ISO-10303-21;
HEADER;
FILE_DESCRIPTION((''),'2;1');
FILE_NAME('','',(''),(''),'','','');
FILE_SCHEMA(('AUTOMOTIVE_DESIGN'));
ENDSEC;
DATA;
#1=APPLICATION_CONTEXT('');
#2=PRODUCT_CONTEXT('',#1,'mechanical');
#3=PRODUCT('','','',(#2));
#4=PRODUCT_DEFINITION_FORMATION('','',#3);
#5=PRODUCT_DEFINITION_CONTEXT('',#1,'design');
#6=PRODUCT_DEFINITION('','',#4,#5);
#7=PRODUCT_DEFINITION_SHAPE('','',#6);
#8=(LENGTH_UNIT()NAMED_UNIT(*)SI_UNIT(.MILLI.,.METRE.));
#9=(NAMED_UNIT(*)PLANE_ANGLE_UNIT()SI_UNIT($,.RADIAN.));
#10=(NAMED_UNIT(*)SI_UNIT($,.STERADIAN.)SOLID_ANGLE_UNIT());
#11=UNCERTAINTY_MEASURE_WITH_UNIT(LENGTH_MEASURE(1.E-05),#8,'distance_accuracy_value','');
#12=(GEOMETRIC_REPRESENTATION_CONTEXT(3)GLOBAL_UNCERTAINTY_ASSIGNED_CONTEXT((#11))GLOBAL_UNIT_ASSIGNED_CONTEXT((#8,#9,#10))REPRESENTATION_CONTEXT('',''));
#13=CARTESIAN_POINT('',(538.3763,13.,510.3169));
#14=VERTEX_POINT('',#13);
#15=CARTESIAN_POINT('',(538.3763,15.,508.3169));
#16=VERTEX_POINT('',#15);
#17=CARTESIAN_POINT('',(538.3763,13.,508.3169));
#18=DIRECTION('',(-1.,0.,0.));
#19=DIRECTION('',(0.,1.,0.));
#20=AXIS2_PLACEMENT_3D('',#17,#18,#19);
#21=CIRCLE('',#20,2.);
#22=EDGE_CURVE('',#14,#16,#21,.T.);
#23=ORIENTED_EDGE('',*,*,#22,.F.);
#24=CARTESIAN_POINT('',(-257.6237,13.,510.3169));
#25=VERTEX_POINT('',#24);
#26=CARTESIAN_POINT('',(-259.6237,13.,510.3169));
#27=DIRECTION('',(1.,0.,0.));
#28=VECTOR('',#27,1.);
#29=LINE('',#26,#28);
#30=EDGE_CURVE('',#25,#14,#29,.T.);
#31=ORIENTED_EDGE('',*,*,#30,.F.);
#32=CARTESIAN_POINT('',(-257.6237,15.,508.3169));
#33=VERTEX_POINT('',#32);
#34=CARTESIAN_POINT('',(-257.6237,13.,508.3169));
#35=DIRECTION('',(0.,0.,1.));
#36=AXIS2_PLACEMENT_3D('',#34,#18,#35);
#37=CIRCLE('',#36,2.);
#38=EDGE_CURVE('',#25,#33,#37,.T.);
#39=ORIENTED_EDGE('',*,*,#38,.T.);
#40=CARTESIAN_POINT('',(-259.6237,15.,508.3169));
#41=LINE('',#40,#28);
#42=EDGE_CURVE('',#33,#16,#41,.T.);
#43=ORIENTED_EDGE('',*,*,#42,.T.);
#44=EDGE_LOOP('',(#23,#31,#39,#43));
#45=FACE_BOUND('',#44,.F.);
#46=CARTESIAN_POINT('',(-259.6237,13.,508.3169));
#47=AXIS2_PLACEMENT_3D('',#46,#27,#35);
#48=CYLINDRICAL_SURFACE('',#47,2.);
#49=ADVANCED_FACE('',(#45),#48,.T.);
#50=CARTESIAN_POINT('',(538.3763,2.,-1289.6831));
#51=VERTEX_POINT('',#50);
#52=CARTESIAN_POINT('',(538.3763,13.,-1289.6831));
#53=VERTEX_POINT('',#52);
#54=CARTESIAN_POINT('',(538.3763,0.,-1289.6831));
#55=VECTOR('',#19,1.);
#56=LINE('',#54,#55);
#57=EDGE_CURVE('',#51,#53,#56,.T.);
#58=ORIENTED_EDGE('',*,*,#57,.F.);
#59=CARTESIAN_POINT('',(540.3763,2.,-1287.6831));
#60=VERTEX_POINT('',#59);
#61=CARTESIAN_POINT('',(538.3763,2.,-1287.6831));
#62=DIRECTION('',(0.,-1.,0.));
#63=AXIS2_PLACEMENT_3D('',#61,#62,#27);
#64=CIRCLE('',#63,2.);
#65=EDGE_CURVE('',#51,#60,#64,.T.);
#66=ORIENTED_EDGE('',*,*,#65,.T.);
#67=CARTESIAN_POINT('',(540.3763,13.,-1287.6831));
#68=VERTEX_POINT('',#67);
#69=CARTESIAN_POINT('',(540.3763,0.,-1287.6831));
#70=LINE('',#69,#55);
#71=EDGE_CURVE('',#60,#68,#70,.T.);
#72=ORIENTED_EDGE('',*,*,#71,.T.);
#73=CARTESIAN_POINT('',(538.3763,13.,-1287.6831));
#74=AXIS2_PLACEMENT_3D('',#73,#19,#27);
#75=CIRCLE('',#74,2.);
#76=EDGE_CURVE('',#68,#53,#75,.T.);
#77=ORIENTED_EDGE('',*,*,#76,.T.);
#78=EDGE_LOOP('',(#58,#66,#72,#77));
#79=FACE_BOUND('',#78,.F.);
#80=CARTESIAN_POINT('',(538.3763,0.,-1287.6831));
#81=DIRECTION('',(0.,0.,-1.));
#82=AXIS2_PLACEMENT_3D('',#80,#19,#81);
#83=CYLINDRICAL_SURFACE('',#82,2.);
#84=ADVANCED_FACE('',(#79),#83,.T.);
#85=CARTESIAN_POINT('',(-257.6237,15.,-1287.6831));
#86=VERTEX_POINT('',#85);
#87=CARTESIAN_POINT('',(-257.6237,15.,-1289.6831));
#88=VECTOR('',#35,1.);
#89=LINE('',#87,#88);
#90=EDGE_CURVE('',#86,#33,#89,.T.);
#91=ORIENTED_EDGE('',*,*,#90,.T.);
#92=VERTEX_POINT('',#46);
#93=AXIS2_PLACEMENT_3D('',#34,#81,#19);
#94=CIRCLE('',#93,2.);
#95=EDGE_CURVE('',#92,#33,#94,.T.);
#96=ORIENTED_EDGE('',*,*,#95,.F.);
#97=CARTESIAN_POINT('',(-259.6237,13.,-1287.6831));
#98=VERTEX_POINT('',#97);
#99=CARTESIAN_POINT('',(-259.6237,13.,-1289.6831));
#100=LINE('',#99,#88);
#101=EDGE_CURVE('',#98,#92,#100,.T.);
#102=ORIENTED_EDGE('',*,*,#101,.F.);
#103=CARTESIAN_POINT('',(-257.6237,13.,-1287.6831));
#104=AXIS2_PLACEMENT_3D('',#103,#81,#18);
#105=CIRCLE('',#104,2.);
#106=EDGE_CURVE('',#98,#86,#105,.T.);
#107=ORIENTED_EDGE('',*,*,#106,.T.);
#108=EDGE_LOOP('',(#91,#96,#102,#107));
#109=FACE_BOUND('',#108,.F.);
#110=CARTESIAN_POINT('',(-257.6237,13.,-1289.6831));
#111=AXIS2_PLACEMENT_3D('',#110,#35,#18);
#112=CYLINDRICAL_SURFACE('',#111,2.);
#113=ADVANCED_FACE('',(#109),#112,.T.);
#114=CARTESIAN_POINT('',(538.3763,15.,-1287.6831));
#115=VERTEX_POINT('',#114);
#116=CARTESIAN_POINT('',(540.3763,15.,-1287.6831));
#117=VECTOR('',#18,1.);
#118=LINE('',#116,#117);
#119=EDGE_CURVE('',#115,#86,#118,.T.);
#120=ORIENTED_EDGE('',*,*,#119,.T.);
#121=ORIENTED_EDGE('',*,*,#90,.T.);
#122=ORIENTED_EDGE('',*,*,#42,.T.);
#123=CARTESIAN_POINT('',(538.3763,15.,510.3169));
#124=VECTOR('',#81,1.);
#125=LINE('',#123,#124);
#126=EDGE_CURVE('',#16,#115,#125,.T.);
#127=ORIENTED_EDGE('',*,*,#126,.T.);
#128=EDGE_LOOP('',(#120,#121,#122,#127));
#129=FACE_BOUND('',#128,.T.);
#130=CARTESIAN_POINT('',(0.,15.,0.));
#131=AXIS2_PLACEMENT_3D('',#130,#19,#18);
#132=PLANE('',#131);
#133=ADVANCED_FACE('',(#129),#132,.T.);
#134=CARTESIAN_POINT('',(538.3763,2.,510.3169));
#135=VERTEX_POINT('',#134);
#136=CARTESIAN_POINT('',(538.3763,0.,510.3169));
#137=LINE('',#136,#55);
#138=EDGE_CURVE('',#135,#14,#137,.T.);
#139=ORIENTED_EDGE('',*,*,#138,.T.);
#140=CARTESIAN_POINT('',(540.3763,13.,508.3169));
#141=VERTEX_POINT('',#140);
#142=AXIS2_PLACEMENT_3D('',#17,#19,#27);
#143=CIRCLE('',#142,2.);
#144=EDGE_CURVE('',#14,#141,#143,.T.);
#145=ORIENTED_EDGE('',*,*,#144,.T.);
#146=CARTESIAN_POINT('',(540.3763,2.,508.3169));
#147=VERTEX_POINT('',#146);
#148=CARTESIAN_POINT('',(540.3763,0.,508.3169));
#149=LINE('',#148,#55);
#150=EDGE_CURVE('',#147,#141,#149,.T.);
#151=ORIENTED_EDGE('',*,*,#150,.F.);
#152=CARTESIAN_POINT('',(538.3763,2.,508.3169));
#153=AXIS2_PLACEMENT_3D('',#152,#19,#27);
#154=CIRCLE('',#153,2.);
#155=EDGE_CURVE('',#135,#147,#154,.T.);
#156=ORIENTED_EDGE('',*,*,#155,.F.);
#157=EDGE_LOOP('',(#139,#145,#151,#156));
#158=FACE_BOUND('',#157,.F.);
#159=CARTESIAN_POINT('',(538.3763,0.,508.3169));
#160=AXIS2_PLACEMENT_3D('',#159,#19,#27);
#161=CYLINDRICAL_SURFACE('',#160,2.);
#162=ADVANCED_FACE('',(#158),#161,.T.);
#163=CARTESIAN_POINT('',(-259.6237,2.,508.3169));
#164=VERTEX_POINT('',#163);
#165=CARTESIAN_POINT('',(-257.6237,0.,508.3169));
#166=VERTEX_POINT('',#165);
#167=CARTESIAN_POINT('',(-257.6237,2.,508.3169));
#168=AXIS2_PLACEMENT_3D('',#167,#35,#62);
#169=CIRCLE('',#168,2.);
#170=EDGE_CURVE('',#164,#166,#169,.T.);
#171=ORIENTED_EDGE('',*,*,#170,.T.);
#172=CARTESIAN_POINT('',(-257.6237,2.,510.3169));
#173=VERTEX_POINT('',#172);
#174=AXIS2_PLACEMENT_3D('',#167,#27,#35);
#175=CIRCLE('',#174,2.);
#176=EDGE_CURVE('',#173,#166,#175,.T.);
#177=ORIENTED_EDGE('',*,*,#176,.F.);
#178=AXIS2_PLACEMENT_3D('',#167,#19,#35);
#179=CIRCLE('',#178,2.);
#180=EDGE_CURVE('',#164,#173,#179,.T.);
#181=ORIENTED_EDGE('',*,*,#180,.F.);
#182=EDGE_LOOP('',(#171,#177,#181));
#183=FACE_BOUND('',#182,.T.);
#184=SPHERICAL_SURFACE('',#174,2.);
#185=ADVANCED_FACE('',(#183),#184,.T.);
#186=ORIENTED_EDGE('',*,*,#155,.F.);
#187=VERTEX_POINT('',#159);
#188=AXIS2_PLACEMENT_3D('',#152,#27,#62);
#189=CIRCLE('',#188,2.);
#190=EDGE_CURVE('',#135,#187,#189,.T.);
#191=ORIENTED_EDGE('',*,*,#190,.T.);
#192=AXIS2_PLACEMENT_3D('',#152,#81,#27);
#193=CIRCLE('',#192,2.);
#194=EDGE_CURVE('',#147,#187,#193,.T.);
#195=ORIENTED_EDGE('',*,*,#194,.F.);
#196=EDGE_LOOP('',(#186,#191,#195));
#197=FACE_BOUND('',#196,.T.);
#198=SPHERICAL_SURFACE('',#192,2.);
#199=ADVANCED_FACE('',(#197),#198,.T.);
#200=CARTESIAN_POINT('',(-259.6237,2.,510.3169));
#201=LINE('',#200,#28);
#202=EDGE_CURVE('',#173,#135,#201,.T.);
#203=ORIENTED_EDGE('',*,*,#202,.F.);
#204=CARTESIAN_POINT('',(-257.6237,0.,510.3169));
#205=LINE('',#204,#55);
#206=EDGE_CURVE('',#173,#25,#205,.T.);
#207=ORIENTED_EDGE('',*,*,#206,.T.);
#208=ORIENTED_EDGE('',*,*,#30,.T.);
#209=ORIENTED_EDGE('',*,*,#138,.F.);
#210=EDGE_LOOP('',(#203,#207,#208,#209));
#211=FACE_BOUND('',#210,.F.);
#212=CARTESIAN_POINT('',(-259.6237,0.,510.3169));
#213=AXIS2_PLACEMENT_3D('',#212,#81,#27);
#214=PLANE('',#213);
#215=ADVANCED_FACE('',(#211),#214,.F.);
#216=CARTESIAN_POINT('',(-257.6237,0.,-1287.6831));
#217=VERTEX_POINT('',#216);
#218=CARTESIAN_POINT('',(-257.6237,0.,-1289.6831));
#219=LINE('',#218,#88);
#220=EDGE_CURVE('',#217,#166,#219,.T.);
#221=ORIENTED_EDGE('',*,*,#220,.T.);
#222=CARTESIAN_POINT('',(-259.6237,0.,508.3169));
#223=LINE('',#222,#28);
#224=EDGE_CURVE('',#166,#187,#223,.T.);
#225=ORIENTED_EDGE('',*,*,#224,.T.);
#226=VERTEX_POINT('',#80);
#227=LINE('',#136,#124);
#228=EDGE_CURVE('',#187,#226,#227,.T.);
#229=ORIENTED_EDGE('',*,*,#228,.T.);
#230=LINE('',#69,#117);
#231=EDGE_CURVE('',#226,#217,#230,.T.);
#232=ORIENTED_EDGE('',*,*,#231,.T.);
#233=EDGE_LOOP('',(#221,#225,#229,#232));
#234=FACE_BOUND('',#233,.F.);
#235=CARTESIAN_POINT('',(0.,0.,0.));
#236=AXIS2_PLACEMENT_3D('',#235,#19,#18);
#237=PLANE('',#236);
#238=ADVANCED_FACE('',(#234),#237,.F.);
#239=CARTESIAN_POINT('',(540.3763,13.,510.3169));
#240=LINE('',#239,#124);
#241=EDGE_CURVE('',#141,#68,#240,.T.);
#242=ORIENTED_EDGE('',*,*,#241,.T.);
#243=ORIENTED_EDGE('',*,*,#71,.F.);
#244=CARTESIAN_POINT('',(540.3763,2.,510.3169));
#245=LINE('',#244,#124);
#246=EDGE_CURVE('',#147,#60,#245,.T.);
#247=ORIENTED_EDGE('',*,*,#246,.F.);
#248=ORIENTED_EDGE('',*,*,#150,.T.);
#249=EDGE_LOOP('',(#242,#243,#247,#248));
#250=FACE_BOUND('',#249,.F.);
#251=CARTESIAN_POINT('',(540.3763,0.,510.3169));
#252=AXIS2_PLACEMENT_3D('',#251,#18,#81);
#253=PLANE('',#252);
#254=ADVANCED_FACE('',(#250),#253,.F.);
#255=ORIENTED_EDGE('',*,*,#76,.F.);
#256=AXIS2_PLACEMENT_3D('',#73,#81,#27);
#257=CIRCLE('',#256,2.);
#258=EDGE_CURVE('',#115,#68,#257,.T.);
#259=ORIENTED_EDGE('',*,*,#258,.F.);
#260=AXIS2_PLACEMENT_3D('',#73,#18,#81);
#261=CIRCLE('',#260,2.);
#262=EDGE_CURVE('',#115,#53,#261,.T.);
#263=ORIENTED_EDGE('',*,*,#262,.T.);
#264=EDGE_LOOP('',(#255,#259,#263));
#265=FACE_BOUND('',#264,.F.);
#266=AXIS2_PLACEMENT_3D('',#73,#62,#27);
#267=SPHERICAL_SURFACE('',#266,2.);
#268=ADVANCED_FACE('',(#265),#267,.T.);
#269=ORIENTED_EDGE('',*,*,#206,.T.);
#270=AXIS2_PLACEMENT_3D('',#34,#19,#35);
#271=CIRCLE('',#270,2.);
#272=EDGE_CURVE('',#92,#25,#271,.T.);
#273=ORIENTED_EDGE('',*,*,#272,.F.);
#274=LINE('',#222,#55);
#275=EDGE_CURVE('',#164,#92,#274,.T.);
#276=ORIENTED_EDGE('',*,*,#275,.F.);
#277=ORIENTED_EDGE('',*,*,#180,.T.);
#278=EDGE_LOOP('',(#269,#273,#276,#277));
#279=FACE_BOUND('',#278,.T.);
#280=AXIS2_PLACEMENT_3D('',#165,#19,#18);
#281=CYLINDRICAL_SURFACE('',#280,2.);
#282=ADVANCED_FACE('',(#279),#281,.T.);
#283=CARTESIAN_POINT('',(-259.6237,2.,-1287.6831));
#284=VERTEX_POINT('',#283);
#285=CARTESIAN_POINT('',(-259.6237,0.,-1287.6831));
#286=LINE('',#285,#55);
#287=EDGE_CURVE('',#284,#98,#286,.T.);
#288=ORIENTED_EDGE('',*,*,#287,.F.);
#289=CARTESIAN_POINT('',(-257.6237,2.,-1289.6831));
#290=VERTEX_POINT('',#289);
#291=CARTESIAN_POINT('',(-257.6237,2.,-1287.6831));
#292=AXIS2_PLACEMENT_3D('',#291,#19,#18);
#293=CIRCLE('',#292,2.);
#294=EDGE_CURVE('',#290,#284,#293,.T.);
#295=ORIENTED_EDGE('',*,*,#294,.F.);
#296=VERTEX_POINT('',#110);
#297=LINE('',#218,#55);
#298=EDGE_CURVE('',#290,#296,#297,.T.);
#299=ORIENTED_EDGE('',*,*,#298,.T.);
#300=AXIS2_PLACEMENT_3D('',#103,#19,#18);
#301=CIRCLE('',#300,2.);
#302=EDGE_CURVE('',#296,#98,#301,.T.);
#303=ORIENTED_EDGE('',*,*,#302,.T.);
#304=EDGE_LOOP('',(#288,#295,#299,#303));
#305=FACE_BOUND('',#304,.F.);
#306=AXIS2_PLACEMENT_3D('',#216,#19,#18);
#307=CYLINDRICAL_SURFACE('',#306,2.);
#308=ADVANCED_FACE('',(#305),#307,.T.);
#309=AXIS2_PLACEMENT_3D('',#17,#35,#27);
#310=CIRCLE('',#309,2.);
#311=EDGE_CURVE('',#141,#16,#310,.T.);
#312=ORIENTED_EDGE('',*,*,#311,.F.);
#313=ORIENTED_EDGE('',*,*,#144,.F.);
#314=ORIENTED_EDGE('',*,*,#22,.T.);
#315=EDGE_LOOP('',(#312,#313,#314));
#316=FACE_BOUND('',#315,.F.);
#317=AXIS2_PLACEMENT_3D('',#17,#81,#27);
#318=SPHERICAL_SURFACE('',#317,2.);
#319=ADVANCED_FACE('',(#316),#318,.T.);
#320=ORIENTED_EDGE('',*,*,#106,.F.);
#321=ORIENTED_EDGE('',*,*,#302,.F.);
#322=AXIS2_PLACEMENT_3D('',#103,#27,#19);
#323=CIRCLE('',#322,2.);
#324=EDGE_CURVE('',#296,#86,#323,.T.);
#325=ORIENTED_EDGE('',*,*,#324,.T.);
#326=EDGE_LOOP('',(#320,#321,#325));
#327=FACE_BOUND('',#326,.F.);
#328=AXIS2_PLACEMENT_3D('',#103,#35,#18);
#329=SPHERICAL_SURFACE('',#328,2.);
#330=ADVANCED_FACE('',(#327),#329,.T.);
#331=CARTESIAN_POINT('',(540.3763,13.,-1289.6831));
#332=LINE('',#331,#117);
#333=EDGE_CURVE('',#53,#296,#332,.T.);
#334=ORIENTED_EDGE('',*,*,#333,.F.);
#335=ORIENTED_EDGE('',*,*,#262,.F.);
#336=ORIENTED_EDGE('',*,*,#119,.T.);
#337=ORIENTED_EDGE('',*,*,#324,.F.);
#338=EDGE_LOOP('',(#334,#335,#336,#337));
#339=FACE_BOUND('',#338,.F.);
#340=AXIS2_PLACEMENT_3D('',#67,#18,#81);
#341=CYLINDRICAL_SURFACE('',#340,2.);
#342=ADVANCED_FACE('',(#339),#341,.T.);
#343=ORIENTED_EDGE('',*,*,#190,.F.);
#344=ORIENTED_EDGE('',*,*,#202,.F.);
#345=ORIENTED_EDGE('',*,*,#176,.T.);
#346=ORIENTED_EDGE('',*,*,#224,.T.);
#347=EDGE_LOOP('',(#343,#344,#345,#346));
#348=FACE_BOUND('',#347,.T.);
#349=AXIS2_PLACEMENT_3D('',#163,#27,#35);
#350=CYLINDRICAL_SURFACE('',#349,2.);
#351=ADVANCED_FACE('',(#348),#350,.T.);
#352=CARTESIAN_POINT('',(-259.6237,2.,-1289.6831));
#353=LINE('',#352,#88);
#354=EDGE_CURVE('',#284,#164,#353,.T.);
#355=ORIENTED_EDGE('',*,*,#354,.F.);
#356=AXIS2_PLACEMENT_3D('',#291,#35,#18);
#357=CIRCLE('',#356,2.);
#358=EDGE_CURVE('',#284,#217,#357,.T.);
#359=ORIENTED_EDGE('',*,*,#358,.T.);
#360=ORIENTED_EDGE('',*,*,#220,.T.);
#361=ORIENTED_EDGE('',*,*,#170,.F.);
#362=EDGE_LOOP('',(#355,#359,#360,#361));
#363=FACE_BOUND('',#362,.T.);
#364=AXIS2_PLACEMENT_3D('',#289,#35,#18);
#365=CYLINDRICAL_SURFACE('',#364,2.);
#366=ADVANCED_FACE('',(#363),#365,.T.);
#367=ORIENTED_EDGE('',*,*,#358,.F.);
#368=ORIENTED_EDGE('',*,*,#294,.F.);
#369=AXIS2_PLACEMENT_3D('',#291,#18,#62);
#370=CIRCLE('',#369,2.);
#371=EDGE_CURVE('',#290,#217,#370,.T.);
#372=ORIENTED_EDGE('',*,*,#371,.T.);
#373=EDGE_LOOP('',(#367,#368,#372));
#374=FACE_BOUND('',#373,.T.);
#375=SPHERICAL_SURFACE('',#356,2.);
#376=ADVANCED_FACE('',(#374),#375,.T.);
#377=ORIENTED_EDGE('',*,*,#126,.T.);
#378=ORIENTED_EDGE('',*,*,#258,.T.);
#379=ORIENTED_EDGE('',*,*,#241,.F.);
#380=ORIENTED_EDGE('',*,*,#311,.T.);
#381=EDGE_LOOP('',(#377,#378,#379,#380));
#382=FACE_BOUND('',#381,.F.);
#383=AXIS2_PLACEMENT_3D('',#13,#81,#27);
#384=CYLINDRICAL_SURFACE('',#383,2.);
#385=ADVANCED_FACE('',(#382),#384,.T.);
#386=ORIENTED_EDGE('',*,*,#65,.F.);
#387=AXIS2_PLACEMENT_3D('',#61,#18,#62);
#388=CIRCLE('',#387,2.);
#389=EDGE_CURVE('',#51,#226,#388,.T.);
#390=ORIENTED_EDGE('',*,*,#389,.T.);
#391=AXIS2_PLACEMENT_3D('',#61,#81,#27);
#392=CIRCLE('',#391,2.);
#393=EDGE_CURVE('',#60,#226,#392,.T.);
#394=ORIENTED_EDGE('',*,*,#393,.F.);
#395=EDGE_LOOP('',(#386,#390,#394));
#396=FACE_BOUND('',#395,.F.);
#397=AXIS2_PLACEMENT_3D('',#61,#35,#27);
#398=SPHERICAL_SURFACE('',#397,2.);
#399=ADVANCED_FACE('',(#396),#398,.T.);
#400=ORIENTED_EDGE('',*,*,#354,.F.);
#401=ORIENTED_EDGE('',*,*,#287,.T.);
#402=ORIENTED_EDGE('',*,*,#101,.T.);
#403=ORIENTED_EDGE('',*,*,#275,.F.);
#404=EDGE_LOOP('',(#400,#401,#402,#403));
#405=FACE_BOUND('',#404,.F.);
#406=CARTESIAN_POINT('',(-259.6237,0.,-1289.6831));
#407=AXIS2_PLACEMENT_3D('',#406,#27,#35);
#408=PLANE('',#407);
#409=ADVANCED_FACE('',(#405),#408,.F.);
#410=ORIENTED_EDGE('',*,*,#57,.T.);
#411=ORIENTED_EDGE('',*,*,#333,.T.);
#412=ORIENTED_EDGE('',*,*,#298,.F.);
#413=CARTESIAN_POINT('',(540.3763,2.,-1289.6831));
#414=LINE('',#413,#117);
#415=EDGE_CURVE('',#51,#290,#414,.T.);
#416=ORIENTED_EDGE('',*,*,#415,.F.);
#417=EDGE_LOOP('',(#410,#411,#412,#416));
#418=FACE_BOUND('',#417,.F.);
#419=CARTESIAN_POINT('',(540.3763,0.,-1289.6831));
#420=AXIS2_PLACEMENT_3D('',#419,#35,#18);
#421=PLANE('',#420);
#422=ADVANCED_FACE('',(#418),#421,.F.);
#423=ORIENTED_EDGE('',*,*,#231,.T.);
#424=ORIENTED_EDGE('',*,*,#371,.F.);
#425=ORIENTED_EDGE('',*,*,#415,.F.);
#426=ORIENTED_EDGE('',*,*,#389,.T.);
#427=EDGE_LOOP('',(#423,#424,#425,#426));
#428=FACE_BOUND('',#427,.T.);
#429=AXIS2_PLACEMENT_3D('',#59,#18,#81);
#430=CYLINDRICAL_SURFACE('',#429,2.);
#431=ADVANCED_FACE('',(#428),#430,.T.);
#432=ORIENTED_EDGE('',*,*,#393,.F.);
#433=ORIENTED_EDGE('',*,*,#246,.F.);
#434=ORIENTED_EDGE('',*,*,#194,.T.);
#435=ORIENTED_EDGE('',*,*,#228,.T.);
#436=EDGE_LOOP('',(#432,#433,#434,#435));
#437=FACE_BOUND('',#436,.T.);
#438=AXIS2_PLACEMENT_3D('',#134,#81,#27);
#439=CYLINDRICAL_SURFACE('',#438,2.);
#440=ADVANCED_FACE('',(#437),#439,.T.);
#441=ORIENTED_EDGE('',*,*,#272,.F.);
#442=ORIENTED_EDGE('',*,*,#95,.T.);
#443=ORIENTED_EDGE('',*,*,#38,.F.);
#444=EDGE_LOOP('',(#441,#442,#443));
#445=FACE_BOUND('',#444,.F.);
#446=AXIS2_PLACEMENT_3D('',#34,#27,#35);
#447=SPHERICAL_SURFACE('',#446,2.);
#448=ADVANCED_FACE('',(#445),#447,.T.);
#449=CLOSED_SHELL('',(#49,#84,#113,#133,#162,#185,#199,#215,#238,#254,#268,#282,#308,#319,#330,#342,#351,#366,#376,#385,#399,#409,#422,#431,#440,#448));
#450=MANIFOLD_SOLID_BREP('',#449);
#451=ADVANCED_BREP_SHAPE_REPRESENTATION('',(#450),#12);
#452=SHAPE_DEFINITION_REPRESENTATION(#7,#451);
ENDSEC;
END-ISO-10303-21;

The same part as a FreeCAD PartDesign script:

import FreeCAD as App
import Part
import Sketcher
from FreeCAD import Vector
Q = App.Units.Quantity


def add_polygon(sketch, points):
    """Adds a closed chain of lines whose ends are joined by coincident constraints."""
    first, n = sketch.GeometryCount, len(points)
    for a, b in zip(points, points[1:] + points[:1]):
        sketch.addGeometry(Part.LineSegment(App.Vector(*a, 0), App.Vector(*b, 0)), False)
    for i in range(n):
        sketch.addConstraint(Sketcher.Constraint("Coincident", first + i, 2, first + (i + 1) % n, 1))

doc = App.newDocument("Part")
params = doc.addObject("Spreadsheet::Sheet", "Params")
for row, (alias, value) in enumerate([
    ("sketch1_width", "800 mm"),
    ("sketch1_height", "1800 mm"),
    ("pad1_length", "15 mm"),
    ("fillet_radius", "2 mm"),
], start=1):
    params.set(f"A{row}", alias)
    params.set(f"B{row}", "=" + value)
    params.setAlias(f"B{row}", alias)

body = doc.addObject("PartDesign::Body", "Body")

sketch1 = body.newObject("Sketcher::SketchObject", "Sketch")
sketch1.AttachmentSupport = (doc.getObject("XZ_Plane"), [""])
sketch1.MapMode = "FlatFace"
add_polygon(sketch1, [(-259.6237, -1289.6831), (-259.6237, 510.3169), (540.3763, 510.3169), (540.3763, -1289.6831)])
sketch1.addConstraint([
    Sketcher.Constraint("Vertical", 0),
    Sketcher.Constraint("Horizontal", 1),
    Sketcher.Constraint("Vertical", 2),
    Sketcher.Constraint("Horizontal", 3),
    Sketcher.Constraint("DistanceX", 1, 1, 1, 2, Q("800 mm")),
    Sketcher.Constraint("DistanceY", 0, 1, 0, 2, Q("1800 mm")),
    Sketcher.Constraint("DistanceY", -1, 1, 0, 2, Q("510.317 mm")),
    Sketcher.Constraint("DistanceX", 0, 2, -1, 1, Q("259.6237 mm")),
])
sketch1.setExpression("Constraints[8]", "Params.sketch1_width")
sketch1.setExpression("Constraints[9]", "Params.sketch1_height")
pad1 = body.newObject("PartDesign::Pad", "Pad")
pad1.Profile = sketch1
pad1.setExpression("Length", "Params.pad1_length")
pad1.Reversed = True
doc.recompute()

fillet = body.newObject("PartDesign::Fillet", "Fillet")
fillet.Base = (pad1, ["Edge1"])
fillet.UseAllEdges = True
fillet.setExpression("Radius", "Params.fillet_radius")

doc.recompute()
